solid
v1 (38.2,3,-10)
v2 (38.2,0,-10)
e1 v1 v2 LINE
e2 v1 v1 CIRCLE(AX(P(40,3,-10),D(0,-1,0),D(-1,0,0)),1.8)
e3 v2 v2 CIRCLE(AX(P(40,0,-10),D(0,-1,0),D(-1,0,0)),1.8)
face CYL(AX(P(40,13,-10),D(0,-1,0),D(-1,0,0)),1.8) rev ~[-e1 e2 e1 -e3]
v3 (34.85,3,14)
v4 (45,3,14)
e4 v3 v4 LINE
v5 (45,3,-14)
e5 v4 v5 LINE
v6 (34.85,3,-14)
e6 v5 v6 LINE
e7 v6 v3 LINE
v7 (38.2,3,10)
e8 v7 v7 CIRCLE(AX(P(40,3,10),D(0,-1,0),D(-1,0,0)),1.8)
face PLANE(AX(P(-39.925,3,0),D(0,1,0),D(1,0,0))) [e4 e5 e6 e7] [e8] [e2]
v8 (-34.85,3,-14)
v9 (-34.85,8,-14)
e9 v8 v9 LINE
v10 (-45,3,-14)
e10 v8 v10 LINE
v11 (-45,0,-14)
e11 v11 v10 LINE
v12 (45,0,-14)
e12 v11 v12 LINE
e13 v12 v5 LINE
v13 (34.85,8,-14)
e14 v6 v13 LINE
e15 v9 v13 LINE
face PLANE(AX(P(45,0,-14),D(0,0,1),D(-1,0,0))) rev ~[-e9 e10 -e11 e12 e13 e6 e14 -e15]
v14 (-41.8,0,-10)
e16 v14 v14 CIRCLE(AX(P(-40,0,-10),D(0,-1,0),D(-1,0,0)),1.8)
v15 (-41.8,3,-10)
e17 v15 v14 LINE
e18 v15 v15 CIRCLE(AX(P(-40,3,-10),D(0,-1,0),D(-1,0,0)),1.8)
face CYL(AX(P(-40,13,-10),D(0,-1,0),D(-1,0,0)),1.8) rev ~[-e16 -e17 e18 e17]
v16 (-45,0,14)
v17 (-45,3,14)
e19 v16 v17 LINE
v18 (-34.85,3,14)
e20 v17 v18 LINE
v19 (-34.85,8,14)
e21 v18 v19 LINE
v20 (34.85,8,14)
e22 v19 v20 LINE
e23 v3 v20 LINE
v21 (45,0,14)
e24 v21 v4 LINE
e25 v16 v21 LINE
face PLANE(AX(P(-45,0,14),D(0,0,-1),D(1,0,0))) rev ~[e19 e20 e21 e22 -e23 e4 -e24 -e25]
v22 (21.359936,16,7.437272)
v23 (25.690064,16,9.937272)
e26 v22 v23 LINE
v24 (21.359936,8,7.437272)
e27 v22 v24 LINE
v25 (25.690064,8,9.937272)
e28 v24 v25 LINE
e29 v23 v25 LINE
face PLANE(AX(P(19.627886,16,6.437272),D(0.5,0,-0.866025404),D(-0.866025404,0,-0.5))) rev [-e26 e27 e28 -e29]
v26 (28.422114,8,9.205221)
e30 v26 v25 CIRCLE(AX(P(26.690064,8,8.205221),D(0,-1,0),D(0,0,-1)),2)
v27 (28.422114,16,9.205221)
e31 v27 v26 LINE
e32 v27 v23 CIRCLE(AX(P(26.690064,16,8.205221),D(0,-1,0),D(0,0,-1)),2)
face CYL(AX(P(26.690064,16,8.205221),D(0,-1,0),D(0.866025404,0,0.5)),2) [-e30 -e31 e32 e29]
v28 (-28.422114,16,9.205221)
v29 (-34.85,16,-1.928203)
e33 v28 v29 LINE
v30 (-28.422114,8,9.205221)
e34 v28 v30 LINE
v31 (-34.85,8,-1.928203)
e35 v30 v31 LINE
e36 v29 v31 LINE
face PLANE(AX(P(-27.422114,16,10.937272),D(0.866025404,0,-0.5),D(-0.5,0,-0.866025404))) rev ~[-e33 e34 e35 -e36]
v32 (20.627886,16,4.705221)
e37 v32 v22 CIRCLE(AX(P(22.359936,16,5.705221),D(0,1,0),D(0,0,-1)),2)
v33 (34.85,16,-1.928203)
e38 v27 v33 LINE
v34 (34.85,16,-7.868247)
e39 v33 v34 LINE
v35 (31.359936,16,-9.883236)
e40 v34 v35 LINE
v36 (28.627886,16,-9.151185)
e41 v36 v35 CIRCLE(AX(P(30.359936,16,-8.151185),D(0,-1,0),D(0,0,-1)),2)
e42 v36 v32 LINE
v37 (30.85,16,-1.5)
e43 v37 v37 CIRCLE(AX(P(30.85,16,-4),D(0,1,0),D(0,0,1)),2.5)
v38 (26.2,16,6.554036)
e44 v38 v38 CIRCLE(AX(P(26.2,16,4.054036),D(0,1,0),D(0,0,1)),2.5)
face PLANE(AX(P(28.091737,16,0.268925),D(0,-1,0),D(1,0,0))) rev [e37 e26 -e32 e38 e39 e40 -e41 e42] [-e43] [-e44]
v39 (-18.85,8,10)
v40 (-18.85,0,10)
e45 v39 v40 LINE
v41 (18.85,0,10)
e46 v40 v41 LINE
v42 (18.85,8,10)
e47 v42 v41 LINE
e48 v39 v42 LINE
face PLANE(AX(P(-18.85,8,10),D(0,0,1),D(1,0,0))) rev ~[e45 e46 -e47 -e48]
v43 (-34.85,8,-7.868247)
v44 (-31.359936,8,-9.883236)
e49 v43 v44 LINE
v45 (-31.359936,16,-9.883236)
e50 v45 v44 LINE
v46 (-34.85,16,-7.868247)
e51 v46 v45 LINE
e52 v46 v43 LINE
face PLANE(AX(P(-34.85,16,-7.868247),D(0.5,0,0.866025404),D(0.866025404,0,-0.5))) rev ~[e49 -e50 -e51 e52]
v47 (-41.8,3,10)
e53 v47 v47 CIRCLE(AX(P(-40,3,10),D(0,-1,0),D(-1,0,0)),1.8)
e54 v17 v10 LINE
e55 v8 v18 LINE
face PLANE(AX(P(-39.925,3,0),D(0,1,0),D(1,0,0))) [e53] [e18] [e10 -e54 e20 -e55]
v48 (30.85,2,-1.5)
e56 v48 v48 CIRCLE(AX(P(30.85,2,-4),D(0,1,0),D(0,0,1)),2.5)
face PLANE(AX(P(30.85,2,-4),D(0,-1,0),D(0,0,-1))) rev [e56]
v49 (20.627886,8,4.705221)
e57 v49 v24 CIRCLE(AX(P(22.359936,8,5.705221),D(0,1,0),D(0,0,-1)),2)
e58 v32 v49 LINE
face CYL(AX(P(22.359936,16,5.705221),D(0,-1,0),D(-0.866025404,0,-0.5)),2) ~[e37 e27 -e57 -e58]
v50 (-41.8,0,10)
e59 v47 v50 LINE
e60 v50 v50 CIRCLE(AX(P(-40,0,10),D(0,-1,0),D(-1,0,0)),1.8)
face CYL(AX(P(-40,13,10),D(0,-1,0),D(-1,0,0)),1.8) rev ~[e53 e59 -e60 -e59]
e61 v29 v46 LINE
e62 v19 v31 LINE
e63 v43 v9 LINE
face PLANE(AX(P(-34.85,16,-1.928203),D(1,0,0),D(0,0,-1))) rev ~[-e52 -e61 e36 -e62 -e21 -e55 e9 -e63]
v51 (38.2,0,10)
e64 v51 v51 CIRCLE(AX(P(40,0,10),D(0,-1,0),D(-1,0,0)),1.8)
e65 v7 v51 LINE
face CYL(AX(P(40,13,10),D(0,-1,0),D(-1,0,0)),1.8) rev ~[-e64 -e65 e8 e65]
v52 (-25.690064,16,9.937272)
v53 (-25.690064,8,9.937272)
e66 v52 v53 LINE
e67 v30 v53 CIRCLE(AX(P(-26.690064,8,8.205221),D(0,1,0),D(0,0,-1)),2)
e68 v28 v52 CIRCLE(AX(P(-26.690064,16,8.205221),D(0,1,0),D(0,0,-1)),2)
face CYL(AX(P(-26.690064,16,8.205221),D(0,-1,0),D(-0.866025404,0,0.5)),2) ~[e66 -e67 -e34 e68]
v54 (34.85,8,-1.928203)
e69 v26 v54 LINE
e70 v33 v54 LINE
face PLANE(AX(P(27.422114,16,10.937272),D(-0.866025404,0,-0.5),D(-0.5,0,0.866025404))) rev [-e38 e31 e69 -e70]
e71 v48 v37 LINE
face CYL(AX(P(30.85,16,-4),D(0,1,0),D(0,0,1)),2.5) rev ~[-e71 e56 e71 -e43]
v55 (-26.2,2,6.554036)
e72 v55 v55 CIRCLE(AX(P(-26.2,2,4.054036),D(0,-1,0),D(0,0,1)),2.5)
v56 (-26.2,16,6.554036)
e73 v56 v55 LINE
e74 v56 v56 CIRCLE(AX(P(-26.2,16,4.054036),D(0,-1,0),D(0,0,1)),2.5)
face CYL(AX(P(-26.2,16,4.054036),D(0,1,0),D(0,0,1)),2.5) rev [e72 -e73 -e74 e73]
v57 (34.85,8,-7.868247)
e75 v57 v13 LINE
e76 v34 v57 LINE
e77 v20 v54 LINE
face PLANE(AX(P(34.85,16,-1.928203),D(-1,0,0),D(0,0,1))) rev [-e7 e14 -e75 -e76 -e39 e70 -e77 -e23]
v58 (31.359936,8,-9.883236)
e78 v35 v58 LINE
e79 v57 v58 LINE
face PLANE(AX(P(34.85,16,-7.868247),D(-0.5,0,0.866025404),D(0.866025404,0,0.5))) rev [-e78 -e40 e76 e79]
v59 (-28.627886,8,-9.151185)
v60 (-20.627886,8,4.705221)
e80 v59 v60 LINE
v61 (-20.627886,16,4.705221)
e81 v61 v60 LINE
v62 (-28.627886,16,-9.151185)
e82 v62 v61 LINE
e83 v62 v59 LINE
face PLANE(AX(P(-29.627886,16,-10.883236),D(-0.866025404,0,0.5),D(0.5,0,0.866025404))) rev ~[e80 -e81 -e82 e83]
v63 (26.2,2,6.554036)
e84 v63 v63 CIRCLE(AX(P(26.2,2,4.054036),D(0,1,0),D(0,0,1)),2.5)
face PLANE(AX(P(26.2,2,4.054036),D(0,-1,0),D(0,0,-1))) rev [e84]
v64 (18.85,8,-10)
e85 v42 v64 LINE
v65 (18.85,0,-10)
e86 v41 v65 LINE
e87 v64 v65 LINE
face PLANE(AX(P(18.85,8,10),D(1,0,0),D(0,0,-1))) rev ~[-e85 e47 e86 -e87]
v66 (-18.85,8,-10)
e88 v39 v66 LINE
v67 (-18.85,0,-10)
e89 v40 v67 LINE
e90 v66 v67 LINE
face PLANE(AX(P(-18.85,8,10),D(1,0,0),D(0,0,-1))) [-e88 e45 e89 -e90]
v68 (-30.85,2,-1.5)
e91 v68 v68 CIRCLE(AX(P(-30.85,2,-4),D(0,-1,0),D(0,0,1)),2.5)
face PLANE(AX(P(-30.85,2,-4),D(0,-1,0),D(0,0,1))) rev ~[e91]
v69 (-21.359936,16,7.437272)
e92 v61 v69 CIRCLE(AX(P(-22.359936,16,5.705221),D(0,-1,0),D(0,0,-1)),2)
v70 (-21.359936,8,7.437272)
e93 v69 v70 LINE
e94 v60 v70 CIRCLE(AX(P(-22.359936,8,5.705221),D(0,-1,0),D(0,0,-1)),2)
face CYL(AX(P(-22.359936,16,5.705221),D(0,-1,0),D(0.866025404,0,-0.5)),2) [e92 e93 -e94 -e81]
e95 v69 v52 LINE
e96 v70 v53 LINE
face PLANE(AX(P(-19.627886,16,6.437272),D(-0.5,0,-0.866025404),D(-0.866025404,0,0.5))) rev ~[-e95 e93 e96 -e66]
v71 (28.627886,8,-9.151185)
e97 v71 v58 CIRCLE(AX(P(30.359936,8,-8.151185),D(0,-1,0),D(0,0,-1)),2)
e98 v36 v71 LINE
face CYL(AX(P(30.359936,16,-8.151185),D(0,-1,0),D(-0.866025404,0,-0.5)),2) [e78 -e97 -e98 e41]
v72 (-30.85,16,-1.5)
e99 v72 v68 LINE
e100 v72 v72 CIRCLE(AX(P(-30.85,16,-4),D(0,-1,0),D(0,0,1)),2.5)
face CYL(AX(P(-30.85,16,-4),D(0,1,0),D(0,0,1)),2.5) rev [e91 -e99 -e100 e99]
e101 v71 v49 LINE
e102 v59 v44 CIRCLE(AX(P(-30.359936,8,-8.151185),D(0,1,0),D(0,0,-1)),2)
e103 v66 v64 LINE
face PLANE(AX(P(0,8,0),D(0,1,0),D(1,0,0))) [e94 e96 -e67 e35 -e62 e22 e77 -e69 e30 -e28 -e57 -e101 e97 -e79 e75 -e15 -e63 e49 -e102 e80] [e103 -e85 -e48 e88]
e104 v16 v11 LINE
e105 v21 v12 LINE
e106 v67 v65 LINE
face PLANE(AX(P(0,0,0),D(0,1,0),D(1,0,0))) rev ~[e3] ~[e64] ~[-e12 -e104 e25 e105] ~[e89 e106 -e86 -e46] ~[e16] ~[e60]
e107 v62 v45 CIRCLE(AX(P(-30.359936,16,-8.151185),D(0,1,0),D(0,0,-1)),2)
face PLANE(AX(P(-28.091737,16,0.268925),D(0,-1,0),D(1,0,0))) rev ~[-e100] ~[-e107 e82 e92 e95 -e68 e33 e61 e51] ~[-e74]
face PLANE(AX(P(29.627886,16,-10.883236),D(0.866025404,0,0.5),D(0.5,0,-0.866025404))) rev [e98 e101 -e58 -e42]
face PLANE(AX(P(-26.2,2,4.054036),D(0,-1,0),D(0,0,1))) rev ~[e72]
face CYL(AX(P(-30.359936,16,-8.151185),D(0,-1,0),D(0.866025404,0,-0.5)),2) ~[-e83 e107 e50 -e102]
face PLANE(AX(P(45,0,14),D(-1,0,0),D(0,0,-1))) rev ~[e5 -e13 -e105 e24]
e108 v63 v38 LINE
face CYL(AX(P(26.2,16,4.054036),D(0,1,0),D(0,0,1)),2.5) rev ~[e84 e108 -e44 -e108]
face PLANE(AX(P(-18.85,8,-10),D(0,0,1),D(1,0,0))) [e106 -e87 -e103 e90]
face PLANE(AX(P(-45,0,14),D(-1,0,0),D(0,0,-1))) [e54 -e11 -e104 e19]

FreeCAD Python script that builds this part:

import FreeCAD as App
import Part
import Sketcher
Q = App.Units.Quantity


def edges_at(feature, points):
    """Names of the edges that pass closest to the given points."""
    edges = feature.Shape.Edges
    near = lambda p: min(range(len(edges)), key=lambda i: edges[i].distToShape(Part.Vertex(*p))[0])
    return sorted({f"Edge{near(p) + 1}" for p in points})


def add_polygon(sketch, points):
    """Adds a closed chain of lines whose ends are joined by coincident constraints."""
    first, n = sketch.GeometryCount, len(points)
    for a, b in zip(points, points[1:] + points[:1]):
        sketch.addGeometry(Part.LineSegment(App.Vector(*a, 0), App.Vector(*b, 0)), False)
    for i in range(n):
        sketch.addConstraint(Sketcher.Constraint("Coincident", first + i, 2, first + (i + 1) % n, 1))

doc = App.newDocument("Part")
body = doc.addObject("PartDesign::Body", "Body")

# Sketch on XZ plane
sketch1 = body.newObject("Sketcher::SketchObject", "Sketch")
sketch1.AttachmentSupport = (doc.getObject("XZ_Plane"), [""])
sketch1.MapMode = "FlatFace"
add_polygon(sketch1, [(-45, -14), (-45, 14), (45, 14), (45, -14)])  # lines 0-3
sketch1.addConstraint([
    Sketcher.Constraint("Vertical", 0),
    Sketcher.Constraint("Horizontal", 1),
    Sketcher.Constraint("Vertical", 2),
    Sketcher.Constraint("Horizontal", 3),
    Sketcher.Constraint("Symmetric", 0, 2, 2, 2, -1, 1),
    Sketcher.Constraint("DistanceX", 1, 1, 1, 2, 90.0),
    Sketcher.Constraint("DistanceY", 0, 1, 0, 2, 28.0),
])
pad1 = body.newObject("PartDesign::Pad", "Pad")
pad1.Profile = sketch1
pad1.Length = 3
pad1.Reversed = True

# Sketch on XZ plane
sketch2 = body.newObject("Sketcher::SketchObject", "Sketch001")
sketch2.AttachmentSupport = (doc.getObject("XZ_Plane"), [""])
sketch2.MapMode = "FlatFace"
add_polygon(sketch2, [(-35, -14), (-35, 14), (35, 14), (35, -14)])  # lines 0-3
sketch2.addConstraint([
    Sketcher.Constraint("Vertical", 0),
    Sketcher.Constraint("Horizontal", 1),
    Sketcher.Constraint("Vertical", 2),
    Sketcher.Constraint("Horizontal", 3),
    Sketcher.Constraint("Symmetric", 0, 2, 2, 2, -1, 1),
    Sketcher.Constraint("DistanceY", 0, 1, 0, 2, 28.0),
    Sketcher.Constraint("DistanceX", 1, 1, 1, 2, 69.7),
])
pad2 = body.newObject("PartDesign::Pad", "Pad001")
pad2.Profile = sketch2
pad2.Length = 8
pad2.Reversed = True

# Sketch on XZ plane
sketch3 = body.newObject("Sketcher::SketchObject", "Sketch002")
sketch3.AttachmentSupport = (doc.getObject("XZ_Plane"), [""])
sketch3.MapMode = "FlatFace"
sketch3.AttachmentOffset = App.Placement(App.Vector(0, 0, -8), App.Rotation())
sketch3.addGeometry([
    Part.Circle(App.Vector(-30.9, -4, 0), App.Vector(0, 0, 1), 2.5),
    Part.Circle(App.Vector(-26.2, 4.1, 0), App.Vector(0, 0, 1), 2.5),
], False)
sketch3.addConstraint([
    Sketcher.Constraint("Equal", 0, 1),
    Sketcher.Constraint("Diameter", 0, 5.0),
    Sketcher.Constraint("DistanceY", 0, 3, -1, 1, 4.0),
    Sketcher.Constraint("DistanceX", 1, 3, -1, 1, 26.2),
    Sketcher.Constraint("DistanceX", 0, 3, -1, 1, 30.85),
    Sketcher.Constraint("DistanceY", -1, 1, 1, 3, 4.054036),
])
pocket1 = body.newObject("PartDesign::Pocket", "Pocket")
pocket1.Profile = sketch3
pocket1.Length = 6
pocket1.Reversed = True

# Sketch on XZ plane
sketch4 = body.newObject("Sketcher::SketchObject", "Sketch003")
sketch4.AttachmentSupport = (doc.getObject("XZ_Plane"), [""])
sketch4.MapMode = "FlatFace"
sketch4.AttachmentOffset = App.Placement(App.Vector(0, 0, -16), App.Rotation())
add_polygon(sketch4, [(-29.6, -10.9), (-19.6, 6.4), (-27.4, 10.9), (-34.9, -1.9), (-34.9, -7.9)])  # lines 0-4
sketch4.addGeometry(Part.Circle(App.Vector(-30.9, -4, 0), App.Vector(0, 0, 1), 2.5), False)  # 5
sketch4.addGeometry(Part.Circle(App.Vector(-26.2, 4.1, 0), App.Vector(0, 0, 1), 2.5), False)  # 6
sketch4.addConstraint([
    Sketcher.Constraint("Vertical", 3),
    Sketcher.Constraint("Equal", 5, 6),
    Sketcher.Constraint("Perpendicular", 0, 1),
    Sketcher.Constraint("Perpendicular", 1, 2),
    Sketcher.Constraint("Perpendicular", 2, 4),
    Sketcher.Constraint("Diameter", 5, 5.0),
    Sketcher.Constraint("Angle", 0, Q("60 deg")),
    Sketcher.Constraint("Distance", 0, 20.0),
    Sketcher.Constraint("Distance", 1, 9.0),
    Sketcher.Constraint("DistanceY", 5, 3, -1, 1, 4.0),
    Sketcher.Constraint("DistanceX", 2, 2, 5, 3, 4.0),
    Sketcher.Constraint("DistanceX", 6, 3, -1, 1, 26.2),
    Sketcher.Constraint("DistanceX", 5, 3, -1, 1, 30.85),
    Sketcher.Constraint("Distance", 2, 14.855771),
    Sketcher.Constraint("DistanceY", 2, 2, 6, 3, 5.982239),
    Sketcher.Constraint("DistanceY", -1, 1, 6, 3, 4.054036),
])
pad3 = body.newObject("PartDesign::Pad", "Pad002")
pad3.Profile = sketch4
pad3.Length = 8
doc.recompute()

fillet = body.newObject("PartDesign::Fillet", "Fillet")
fillet.Base = (pad3, edges_at(pad3, [(-27.422, 12, 10.937), (-19.628, 12, 6.437), (-29.628, 12, -10.883)]))
fillet.Radius = 2
doc.recompute()

mirrored = body.newObject("PartDesign::Mirrored", "Mirrored")
mirrored.Originals = [pocket1, pad3]
mirrored.MirrorPlane = (doc.getObject("YZ_Plane"), [""])
body.Tip = mirrored
doc.recompute()

fillet2 = body.newObject("PartDesign::Fillet", "Fillet001")
fillet2.Base = (mirrored, edges_at(mirrored, [(27.422, 12, 10.937), (19.628, 12, 6.437), (29.628, 12, -10.883)]))
fillet2.Radius = 2

# Sketch on XZ plane
sketch5 = body.newObject("Sketcher::SketchObject", "Sketch004")
sketch5.AttachmentSupport = (doc.getObject("XZ_Plane"), [""])
sketch5.MapMode = "FlatFace"
sketch5.AttachmentOffset = App.Placement(App.Vector(0, 0, -3), App.Rotation())
sketch5.addGeometry([
    Part.Circle(App.Vector(-40, -10, 0), App.Vector(0, 0, 1), 1.8),
    Part.Circle(App.Vector(-40, 10, 0), App.Vector(0, 0, 1), 1.8),
    Part.Circle(App.Vector(40, 10, 0), App.Vector(0, 0, 1), 1.8),
    Part.Circle(App.Vector(40, -10, 0), App.Vector(0, 0, 1), 1.8),
], False)
sketch5.addConstraint([
    Sketcher.Constraint("Equal", 0, 1),
    Sketcher.Constraint("Equal", 1, 2),
    Sketcher.Constraint("Equal", 2, 3),
    Sketcher.Constraint("Symmetric", 0, 3, 2, 3, -1, 1),
    Sketcher.Constraint("Symmetric", 1, 3, 3, 3, -1, 1),
    Sketcher.Constraint("Symmetric", 1, 3, 2, 3, -2),
    Sketcher.Constraint("Diameter", 0, 3.6),
    Sketcher.Constraint("DistanceX", 0, 3, -1, 1, 40.0),
    Sketcher.Constraint("DistanceY", 0, 3, -1, 1, 10.0),
])
doc.recompute()
hole = body.newObject("PartDesign::Hole", "Hole")
hole.Profile = sketch5
hole.ThreadType = "None"
hole.Diameter = 3.6
hole.DepthType = "Dimension"
hole.Depth = 10
hole.DrillPoint = "Angled"
hole.DrillPointAngle = 118
hole.Reversed = True

# Sketch on XZ plane
sketch6 = body.newObject("Sketcher::SketchObject", "Sketch005")
sketch6.AttachmentSupport = (doc.getObject("XZ_Plane"), [""])
sketch6.MapMode = "FlatFace"
sketch6.AttachmentOffset = App.Placement(App.Vector(0, 0, -8), App.Rotation())
add_polygon(sketch6, [(-19, -10), (-19, 10), (19, 10), (19, -10)])  # lines 0-3
sketch6.addConstraint([
    Sketcher.Constraint("Vertical", 0),
    Sketcher.Constraint("Horizontal", 1),
    Sketcher.Constraint("Vertical", 2),
    Sketcher.Constraint("Horizontal", 3),
    Sketcher.Constraint("Symmetric", 0, 2, 2, 2, -1, 1),
    Sketcher.Constraint("DistanceY", 0, 1, 0, 2, 20.0),
    Sketcher.Constraint("DistanceX", 1, 1, 1, 2, 37.7),
])
pocket2 = body.newObject("PartDesign::Pocket", "Pocket001")
pocket2.Profile = sketch6
pocket2.Type = "ThroughAll"
pocket2.Reversed = True

doc.recompute()
